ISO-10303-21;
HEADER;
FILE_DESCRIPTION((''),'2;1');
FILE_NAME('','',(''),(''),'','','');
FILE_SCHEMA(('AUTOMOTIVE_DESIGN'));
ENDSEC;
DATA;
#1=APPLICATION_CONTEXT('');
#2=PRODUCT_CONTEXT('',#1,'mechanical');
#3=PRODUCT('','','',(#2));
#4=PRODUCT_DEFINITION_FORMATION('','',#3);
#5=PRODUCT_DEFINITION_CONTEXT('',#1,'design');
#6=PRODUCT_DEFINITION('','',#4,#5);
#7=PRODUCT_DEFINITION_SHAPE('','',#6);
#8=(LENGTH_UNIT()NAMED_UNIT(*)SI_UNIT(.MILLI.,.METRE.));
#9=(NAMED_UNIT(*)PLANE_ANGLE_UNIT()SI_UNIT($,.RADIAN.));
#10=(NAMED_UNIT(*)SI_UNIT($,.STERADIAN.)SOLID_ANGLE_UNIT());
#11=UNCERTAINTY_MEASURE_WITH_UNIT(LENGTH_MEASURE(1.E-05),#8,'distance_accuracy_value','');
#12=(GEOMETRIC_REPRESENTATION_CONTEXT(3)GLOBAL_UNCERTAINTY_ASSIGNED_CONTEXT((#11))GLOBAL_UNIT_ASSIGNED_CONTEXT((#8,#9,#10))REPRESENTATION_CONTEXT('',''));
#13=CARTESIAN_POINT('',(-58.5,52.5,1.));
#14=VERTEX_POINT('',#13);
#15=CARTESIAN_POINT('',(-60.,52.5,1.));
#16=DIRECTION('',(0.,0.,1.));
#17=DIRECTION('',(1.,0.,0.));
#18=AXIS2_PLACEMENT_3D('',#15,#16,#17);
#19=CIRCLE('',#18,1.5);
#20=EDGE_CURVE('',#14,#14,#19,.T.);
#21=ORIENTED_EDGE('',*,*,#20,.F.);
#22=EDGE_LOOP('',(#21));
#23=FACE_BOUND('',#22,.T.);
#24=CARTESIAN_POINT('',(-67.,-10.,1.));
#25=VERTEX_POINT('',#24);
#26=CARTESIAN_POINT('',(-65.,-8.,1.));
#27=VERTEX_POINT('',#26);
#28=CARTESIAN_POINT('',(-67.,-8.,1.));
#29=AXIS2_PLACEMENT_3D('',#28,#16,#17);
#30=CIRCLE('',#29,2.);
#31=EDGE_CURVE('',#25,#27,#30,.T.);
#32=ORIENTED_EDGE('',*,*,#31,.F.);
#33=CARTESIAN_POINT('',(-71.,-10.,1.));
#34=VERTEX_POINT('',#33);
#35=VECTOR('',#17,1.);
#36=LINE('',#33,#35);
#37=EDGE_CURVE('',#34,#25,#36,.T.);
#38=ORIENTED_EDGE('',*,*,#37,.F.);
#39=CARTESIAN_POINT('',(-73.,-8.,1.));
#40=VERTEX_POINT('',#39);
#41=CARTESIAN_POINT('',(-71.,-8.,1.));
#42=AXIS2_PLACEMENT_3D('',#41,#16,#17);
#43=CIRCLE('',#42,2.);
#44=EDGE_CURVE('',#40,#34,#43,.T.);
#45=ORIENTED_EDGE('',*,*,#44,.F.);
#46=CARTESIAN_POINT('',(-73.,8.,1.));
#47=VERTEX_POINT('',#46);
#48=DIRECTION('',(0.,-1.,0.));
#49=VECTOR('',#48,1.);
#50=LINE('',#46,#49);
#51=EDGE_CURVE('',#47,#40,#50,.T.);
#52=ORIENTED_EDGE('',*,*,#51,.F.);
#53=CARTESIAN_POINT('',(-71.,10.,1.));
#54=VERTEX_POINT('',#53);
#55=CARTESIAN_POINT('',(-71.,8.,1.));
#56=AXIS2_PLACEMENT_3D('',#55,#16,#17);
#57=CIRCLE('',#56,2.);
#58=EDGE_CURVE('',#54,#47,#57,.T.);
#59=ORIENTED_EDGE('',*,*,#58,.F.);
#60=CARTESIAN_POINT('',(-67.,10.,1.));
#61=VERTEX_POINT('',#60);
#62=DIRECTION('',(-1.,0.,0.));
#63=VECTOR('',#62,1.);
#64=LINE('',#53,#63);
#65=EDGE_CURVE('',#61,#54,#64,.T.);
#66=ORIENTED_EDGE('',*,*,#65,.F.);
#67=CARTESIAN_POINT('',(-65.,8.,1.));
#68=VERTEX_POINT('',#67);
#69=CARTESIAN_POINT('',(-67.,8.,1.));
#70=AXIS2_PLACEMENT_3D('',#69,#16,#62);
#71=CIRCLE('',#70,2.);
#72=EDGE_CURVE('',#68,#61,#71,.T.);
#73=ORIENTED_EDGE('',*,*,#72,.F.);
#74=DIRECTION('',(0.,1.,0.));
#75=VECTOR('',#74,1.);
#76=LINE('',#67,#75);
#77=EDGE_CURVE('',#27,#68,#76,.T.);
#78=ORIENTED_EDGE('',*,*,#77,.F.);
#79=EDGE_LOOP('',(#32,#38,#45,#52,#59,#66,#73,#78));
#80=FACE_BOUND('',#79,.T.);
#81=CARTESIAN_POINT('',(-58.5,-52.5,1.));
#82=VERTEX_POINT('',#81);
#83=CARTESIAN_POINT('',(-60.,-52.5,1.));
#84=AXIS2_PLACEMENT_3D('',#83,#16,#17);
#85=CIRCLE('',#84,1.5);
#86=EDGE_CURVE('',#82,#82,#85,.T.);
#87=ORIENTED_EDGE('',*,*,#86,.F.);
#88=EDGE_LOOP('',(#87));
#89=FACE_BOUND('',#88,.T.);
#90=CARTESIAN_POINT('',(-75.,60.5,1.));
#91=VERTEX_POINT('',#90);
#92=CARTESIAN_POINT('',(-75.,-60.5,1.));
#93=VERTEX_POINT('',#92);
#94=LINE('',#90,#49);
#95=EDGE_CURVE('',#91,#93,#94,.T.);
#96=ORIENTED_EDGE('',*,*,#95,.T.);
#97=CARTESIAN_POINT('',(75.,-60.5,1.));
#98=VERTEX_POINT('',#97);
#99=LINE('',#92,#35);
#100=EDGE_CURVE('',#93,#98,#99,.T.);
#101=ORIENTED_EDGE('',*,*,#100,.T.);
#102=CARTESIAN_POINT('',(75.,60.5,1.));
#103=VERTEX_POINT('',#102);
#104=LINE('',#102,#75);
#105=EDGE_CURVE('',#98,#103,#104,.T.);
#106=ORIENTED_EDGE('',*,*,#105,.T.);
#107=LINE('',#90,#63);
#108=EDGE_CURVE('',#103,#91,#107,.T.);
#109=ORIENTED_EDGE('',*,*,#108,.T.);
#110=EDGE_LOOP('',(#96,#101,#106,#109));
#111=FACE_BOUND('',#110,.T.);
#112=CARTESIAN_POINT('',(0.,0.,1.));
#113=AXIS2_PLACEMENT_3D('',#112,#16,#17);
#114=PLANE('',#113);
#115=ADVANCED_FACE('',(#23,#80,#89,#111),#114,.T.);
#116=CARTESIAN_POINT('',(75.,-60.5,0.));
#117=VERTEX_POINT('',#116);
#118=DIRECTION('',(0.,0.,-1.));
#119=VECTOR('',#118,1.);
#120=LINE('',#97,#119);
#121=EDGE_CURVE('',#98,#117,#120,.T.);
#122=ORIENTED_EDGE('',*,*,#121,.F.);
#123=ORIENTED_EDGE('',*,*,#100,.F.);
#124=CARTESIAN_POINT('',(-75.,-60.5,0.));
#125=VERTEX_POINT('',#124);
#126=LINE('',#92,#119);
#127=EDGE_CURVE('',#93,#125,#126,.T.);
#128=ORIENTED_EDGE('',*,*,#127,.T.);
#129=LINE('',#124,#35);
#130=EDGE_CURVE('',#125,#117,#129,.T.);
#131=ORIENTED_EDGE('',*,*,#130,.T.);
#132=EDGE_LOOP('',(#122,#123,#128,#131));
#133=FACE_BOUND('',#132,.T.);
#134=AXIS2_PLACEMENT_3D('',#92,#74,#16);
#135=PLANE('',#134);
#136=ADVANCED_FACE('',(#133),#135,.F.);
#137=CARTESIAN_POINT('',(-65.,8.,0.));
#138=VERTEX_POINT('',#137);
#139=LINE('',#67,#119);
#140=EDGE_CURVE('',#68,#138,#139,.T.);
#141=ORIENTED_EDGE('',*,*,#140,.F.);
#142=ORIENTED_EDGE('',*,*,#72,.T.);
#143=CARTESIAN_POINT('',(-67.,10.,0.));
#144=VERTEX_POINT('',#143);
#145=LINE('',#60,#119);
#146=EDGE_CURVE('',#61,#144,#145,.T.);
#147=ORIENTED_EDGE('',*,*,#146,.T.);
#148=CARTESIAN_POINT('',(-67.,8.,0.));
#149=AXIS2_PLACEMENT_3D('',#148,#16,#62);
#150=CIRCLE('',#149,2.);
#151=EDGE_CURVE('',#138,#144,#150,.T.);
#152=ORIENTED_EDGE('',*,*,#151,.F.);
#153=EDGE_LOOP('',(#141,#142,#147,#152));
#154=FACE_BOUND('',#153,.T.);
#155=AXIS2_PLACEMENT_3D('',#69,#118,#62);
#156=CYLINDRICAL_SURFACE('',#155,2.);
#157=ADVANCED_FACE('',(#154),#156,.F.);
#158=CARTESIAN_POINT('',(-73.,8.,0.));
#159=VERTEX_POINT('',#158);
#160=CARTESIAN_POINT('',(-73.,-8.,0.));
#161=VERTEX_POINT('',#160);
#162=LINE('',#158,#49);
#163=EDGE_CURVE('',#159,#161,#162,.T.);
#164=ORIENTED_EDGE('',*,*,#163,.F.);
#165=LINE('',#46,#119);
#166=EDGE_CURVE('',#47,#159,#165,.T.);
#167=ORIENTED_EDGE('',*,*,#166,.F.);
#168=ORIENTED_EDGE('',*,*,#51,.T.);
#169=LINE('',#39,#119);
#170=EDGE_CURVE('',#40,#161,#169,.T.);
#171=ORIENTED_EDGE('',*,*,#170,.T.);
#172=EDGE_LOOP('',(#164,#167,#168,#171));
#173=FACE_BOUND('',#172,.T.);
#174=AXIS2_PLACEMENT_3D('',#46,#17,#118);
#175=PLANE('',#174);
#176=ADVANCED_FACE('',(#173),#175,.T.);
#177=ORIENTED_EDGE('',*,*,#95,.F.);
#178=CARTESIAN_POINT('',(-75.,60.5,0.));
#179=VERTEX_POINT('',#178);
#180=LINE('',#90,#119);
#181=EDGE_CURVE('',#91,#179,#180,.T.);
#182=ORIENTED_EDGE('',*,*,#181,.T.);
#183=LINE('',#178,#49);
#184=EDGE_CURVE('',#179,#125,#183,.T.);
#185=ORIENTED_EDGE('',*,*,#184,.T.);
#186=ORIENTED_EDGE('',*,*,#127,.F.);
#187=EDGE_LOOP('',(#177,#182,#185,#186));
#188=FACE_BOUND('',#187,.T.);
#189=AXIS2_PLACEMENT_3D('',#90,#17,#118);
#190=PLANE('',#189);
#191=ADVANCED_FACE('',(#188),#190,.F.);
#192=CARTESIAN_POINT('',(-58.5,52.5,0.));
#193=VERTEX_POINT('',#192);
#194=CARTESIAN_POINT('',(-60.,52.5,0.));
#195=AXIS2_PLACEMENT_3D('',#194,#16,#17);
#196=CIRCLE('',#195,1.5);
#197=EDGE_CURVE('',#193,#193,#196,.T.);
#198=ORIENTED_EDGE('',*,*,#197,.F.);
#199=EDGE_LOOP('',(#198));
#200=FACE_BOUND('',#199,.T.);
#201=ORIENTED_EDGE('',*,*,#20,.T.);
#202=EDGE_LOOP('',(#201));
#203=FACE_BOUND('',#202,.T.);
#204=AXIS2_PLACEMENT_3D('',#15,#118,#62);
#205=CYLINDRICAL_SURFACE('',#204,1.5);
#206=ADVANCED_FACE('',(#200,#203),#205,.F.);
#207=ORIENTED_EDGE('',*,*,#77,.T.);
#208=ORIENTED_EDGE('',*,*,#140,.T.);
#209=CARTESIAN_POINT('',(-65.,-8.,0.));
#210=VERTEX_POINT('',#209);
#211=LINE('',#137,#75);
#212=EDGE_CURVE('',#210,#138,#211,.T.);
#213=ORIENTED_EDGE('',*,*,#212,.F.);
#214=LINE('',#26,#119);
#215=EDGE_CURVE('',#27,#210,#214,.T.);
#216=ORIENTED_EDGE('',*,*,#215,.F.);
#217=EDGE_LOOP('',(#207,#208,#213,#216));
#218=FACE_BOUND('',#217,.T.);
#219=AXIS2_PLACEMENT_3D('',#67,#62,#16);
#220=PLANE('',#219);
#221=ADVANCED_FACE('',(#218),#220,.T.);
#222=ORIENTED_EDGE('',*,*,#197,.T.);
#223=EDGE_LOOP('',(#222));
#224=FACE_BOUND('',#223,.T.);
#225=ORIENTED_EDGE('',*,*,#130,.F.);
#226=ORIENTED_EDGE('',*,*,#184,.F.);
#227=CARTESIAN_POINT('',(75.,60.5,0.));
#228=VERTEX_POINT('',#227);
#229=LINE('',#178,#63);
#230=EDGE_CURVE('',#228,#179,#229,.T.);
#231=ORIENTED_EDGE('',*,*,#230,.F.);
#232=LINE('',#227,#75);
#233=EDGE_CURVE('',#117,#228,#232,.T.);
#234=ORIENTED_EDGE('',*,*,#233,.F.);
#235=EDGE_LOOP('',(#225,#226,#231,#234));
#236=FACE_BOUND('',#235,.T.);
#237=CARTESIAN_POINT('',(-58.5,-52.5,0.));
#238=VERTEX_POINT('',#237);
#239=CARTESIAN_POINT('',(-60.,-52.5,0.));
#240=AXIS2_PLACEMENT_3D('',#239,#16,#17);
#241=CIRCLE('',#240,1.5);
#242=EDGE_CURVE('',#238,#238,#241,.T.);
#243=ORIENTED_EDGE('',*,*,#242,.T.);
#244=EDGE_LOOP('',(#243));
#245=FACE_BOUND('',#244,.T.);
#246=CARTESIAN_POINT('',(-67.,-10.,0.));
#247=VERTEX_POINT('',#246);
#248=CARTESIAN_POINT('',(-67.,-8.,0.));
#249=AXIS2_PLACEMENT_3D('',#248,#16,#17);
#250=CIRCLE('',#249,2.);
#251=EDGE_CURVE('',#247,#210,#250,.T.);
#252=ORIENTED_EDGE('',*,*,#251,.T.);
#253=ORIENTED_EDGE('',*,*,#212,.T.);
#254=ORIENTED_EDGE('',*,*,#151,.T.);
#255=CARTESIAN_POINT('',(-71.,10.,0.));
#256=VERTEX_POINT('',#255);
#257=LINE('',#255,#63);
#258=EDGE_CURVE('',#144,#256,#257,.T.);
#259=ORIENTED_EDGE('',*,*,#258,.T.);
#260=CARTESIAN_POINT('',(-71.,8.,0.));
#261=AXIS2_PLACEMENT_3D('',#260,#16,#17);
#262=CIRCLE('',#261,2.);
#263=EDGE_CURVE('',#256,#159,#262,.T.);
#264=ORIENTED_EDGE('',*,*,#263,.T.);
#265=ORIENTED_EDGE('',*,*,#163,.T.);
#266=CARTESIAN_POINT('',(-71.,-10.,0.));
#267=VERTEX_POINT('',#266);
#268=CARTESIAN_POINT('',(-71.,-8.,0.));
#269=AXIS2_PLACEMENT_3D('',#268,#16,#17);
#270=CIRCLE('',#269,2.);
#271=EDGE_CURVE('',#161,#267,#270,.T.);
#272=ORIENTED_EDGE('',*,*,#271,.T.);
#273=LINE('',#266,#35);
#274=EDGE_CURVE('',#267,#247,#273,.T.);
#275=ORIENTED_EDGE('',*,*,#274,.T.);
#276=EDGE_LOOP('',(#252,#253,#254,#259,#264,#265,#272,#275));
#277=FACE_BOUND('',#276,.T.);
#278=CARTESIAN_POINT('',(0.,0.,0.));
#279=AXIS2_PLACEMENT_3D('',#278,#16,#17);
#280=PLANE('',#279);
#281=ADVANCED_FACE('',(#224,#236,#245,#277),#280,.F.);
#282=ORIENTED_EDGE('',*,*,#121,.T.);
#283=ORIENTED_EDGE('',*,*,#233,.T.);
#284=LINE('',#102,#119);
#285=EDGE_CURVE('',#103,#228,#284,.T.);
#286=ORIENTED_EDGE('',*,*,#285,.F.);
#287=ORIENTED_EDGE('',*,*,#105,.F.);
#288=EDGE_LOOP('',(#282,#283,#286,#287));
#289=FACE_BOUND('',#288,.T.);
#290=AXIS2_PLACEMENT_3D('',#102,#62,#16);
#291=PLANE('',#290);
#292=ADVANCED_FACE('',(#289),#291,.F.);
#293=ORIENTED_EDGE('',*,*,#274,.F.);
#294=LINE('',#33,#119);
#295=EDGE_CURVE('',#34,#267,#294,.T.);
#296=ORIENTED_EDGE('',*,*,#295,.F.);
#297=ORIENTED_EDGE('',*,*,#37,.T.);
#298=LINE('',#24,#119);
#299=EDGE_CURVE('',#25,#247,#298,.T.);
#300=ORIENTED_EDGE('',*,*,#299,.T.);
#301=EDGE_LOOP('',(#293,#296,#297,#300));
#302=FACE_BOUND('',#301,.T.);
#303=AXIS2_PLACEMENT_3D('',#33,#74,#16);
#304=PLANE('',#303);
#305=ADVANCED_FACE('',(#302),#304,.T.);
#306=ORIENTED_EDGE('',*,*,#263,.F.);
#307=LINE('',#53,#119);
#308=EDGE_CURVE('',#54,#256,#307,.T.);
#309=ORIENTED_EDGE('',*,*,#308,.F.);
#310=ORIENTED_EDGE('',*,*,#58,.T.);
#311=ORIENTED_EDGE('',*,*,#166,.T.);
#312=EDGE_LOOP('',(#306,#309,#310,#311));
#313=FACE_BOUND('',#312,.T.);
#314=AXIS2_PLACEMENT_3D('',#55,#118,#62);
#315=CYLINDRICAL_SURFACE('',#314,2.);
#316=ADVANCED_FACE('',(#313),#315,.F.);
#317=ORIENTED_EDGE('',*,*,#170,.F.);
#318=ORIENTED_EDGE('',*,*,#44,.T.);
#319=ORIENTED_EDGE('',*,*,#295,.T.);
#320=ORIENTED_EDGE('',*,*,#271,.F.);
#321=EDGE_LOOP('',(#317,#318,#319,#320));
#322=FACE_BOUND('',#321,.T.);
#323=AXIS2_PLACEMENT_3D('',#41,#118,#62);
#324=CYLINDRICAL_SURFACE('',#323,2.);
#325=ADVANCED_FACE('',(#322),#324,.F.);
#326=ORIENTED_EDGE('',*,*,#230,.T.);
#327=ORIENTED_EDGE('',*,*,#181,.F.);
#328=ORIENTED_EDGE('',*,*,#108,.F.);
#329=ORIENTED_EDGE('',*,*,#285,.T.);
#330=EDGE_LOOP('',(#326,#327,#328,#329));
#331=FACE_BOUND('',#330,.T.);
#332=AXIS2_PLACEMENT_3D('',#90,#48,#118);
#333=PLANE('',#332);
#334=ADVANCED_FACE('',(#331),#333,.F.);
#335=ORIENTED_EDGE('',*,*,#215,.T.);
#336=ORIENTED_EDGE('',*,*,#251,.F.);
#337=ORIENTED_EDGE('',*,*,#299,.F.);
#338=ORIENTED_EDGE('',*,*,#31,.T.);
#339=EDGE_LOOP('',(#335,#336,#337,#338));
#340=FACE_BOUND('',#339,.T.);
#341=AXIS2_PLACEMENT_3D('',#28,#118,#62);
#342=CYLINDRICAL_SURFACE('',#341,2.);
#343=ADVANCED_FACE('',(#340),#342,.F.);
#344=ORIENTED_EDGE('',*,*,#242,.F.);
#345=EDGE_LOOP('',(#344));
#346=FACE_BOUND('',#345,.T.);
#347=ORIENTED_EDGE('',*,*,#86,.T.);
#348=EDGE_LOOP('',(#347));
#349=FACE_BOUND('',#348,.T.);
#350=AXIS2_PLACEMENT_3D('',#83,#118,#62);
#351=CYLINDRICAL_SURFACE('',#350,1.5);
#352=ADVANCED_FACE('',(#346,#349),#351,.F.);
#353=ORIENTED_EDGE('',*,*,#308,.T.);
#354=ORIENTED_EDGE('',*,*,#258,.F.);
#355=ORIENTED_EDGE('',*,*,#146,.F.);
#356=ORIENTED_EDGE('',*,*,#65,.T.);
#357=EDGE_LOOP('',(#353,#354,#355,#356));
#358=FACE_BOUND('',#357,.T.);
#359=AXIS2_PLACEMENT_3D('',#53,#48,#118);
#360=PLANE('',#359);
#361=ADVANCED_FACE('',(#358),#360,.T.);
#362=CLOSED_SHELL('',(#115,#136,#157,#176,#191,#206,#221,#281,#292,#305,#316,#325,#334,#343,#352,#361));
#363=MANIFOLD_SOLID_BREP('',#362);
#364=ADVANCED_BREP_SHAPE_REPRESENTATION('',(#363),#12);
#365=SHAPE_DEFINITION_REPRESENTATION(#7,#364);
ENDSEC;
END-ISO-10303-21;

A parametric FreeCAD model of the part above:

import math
import FreeCAD as App
import Part
import Sketcher

V = App.Vector
Q = App.Units.Quantity


def add_polygon(sketch, points):
    """Adds a closed chain of lines whose ends are joined by coincident constraints."""
    first, n = sketch.GeometryCount, len(points)
    for a, b in zip(points, points[1:] + points[:1]):
        sketch.addGeometry(Part.LineSegment(App.Vector(*a, 0), App.Vector(*b, 0)), False)
    for i in range(n):
        sketch.addConstraint(Sketcher.Constraint("Coincident", first + i, 2, first + (i + 1) % n, 1))

doc = App.newDocument("Part")
body = doc.addObject("PartDesign::Body", "Body")

sketch1 = body.newObject("Sketcher::SketchObject", "Sketch")
sketch1.AttachmentSupport = (doc.getObject("XY_Plane"), [""])
sketch1.MapMode = "FlatFace"
add_polygon(sketch1, [(-75, 60.5), (-75, -60.5), (75, -60.5), (75, 60.5)])
sketch1.addGeometry(Part.Circle(V(-60, -52.5, 0), V(0, 0, 1), 1.5), False)
sketch1.addGeometry(Part.ArcOfCircle(Part.Circle(V(-71, 8, 0), V(0, 0, 1), 2), math.radians(90), math.radians(180)), False)
sketch1.addGeometry(Part.LineSegment(V(-71, 10, 0), V(-67, 10, 0)), False)
sketch1.addGeometry(Part.ArcOfCircle(Part.Circle(V(-67, 8, 0), V(0, 0, 1), 2), math.radians(0), math.radians(90)), False)
sketch1.addGeometry(Part.LineSegment(V(-65, 8, 0), V(-65, -8, 0)), False)
sketch1.addGeometry(Part.ArcOfCircle(Part.Circle(V(-67, -8, 0), V(0, 0, 1), 2), math.radians(-90), math.radians(0)), False)
sketch1.addGeometry(Part.LineSegment(V(-67, -10, 0), V(-71, -10, 0)), False)
sketch1.addGeometry(Part.ArcOfCircle(Part.Circle(V(-71, -8, 0), V(0, 0, 1), 2), math.radians(-180), math.radians(-90)), False)
sketch1.addGeometry(Part.LineSegment(V(-73, -8, 0), V(-73, 8, 0)), False)
sketch1.addGeometry(Part.Circle(V(-60, 52.5, 0), V(0, 0, 1), 1.5), False)
sketch1.addConstraint([
    Sketcher.Constraint("Tangent", 5, 1, 6, 1),
    Sketcher.Constraint("Tangent", 6, 2, 7, 2),
    Sketcher.Constraint("Tangent", 7, 1, 8, 1),
    Sketcher.Constraint("Tangent", 8, 2, 9, 2),
    Sketcher.Constraint("Tangent", 9, 1, 10, 1),
    Sketcher.Constraint("Tangent", 10, 2, 11, 2),
    Sketcher.Constraint("Tangent", 11, 1, 12, 1),
    Sketcher.Constraint("Tangent", 12, 2, 5, 2),
    Sketcher.Constraint("Vertical", 0),
    Sketcher.Constraint("Horizontal", 1),
    Sketcher.Constraint("Vertical", 2),
    Sketcher.Constraint("Horizontal", 3),
    Sketcher.Constraint("Horizontal", 6),
    Sketcher.Constraint("Vertical", 8),
    Sketcher.Constraint("Horizontal", 10),
    Sketcher.Constraint("Vertical", 12),
    Sketcher.Constraint("Equal", 5, 7),
    Sketcher.Constraint("Equal", 7, 9),
    Sketcher.Constraint("Equal", 9, 11),
    Sketcher.Constraint("Equal", 4, 13),
    Sketcher.Constraint("Symmetric", 0, 2, 2, 2, -1, 1),
    Sketcher.Constraint("Symmetric", 4, 3, 13, 3, -1),
    Sketcher.Constraint("Diameter", 4, Q("3 mm")),
    Sketcher.Constraint("Radius", 5, Q("2 mm")),
    Sketcher.Constraint("DistanceX", 1, 1, 1, 2, Q("150 mm")),
    Sketcher.Constraint("DistanceX", 6, 1, 6, 2, Q("4 mm")),
    Sketcher.Constraint("DistanceY", 0, 2, 0, 1, Q("121 mm")),
    Sketcher.Constraint("DistanceY", 8, 2, 8, 1, Q("16 mm")),
    Sketcher.Constraint("DistanceX", 4, 3, -1, 1, Q("60 mm")),
    Sketcher.Constraint("DistanceX", 5, 3, -1, 1, Q("71 mm")),
    Sketcher.Constraint("DistanceY", -1, 1, 5, 3, Q("8 mm")),
    Sketcher.Constraint("DistanceY", 4, 3, 13, 3, Q("105 mm")),
])
pad1 = body.newObject("PartDesign::Pad", "Pad")
pad1.Profile = sketch1
pad1.Length = 1

doc.recompute()
